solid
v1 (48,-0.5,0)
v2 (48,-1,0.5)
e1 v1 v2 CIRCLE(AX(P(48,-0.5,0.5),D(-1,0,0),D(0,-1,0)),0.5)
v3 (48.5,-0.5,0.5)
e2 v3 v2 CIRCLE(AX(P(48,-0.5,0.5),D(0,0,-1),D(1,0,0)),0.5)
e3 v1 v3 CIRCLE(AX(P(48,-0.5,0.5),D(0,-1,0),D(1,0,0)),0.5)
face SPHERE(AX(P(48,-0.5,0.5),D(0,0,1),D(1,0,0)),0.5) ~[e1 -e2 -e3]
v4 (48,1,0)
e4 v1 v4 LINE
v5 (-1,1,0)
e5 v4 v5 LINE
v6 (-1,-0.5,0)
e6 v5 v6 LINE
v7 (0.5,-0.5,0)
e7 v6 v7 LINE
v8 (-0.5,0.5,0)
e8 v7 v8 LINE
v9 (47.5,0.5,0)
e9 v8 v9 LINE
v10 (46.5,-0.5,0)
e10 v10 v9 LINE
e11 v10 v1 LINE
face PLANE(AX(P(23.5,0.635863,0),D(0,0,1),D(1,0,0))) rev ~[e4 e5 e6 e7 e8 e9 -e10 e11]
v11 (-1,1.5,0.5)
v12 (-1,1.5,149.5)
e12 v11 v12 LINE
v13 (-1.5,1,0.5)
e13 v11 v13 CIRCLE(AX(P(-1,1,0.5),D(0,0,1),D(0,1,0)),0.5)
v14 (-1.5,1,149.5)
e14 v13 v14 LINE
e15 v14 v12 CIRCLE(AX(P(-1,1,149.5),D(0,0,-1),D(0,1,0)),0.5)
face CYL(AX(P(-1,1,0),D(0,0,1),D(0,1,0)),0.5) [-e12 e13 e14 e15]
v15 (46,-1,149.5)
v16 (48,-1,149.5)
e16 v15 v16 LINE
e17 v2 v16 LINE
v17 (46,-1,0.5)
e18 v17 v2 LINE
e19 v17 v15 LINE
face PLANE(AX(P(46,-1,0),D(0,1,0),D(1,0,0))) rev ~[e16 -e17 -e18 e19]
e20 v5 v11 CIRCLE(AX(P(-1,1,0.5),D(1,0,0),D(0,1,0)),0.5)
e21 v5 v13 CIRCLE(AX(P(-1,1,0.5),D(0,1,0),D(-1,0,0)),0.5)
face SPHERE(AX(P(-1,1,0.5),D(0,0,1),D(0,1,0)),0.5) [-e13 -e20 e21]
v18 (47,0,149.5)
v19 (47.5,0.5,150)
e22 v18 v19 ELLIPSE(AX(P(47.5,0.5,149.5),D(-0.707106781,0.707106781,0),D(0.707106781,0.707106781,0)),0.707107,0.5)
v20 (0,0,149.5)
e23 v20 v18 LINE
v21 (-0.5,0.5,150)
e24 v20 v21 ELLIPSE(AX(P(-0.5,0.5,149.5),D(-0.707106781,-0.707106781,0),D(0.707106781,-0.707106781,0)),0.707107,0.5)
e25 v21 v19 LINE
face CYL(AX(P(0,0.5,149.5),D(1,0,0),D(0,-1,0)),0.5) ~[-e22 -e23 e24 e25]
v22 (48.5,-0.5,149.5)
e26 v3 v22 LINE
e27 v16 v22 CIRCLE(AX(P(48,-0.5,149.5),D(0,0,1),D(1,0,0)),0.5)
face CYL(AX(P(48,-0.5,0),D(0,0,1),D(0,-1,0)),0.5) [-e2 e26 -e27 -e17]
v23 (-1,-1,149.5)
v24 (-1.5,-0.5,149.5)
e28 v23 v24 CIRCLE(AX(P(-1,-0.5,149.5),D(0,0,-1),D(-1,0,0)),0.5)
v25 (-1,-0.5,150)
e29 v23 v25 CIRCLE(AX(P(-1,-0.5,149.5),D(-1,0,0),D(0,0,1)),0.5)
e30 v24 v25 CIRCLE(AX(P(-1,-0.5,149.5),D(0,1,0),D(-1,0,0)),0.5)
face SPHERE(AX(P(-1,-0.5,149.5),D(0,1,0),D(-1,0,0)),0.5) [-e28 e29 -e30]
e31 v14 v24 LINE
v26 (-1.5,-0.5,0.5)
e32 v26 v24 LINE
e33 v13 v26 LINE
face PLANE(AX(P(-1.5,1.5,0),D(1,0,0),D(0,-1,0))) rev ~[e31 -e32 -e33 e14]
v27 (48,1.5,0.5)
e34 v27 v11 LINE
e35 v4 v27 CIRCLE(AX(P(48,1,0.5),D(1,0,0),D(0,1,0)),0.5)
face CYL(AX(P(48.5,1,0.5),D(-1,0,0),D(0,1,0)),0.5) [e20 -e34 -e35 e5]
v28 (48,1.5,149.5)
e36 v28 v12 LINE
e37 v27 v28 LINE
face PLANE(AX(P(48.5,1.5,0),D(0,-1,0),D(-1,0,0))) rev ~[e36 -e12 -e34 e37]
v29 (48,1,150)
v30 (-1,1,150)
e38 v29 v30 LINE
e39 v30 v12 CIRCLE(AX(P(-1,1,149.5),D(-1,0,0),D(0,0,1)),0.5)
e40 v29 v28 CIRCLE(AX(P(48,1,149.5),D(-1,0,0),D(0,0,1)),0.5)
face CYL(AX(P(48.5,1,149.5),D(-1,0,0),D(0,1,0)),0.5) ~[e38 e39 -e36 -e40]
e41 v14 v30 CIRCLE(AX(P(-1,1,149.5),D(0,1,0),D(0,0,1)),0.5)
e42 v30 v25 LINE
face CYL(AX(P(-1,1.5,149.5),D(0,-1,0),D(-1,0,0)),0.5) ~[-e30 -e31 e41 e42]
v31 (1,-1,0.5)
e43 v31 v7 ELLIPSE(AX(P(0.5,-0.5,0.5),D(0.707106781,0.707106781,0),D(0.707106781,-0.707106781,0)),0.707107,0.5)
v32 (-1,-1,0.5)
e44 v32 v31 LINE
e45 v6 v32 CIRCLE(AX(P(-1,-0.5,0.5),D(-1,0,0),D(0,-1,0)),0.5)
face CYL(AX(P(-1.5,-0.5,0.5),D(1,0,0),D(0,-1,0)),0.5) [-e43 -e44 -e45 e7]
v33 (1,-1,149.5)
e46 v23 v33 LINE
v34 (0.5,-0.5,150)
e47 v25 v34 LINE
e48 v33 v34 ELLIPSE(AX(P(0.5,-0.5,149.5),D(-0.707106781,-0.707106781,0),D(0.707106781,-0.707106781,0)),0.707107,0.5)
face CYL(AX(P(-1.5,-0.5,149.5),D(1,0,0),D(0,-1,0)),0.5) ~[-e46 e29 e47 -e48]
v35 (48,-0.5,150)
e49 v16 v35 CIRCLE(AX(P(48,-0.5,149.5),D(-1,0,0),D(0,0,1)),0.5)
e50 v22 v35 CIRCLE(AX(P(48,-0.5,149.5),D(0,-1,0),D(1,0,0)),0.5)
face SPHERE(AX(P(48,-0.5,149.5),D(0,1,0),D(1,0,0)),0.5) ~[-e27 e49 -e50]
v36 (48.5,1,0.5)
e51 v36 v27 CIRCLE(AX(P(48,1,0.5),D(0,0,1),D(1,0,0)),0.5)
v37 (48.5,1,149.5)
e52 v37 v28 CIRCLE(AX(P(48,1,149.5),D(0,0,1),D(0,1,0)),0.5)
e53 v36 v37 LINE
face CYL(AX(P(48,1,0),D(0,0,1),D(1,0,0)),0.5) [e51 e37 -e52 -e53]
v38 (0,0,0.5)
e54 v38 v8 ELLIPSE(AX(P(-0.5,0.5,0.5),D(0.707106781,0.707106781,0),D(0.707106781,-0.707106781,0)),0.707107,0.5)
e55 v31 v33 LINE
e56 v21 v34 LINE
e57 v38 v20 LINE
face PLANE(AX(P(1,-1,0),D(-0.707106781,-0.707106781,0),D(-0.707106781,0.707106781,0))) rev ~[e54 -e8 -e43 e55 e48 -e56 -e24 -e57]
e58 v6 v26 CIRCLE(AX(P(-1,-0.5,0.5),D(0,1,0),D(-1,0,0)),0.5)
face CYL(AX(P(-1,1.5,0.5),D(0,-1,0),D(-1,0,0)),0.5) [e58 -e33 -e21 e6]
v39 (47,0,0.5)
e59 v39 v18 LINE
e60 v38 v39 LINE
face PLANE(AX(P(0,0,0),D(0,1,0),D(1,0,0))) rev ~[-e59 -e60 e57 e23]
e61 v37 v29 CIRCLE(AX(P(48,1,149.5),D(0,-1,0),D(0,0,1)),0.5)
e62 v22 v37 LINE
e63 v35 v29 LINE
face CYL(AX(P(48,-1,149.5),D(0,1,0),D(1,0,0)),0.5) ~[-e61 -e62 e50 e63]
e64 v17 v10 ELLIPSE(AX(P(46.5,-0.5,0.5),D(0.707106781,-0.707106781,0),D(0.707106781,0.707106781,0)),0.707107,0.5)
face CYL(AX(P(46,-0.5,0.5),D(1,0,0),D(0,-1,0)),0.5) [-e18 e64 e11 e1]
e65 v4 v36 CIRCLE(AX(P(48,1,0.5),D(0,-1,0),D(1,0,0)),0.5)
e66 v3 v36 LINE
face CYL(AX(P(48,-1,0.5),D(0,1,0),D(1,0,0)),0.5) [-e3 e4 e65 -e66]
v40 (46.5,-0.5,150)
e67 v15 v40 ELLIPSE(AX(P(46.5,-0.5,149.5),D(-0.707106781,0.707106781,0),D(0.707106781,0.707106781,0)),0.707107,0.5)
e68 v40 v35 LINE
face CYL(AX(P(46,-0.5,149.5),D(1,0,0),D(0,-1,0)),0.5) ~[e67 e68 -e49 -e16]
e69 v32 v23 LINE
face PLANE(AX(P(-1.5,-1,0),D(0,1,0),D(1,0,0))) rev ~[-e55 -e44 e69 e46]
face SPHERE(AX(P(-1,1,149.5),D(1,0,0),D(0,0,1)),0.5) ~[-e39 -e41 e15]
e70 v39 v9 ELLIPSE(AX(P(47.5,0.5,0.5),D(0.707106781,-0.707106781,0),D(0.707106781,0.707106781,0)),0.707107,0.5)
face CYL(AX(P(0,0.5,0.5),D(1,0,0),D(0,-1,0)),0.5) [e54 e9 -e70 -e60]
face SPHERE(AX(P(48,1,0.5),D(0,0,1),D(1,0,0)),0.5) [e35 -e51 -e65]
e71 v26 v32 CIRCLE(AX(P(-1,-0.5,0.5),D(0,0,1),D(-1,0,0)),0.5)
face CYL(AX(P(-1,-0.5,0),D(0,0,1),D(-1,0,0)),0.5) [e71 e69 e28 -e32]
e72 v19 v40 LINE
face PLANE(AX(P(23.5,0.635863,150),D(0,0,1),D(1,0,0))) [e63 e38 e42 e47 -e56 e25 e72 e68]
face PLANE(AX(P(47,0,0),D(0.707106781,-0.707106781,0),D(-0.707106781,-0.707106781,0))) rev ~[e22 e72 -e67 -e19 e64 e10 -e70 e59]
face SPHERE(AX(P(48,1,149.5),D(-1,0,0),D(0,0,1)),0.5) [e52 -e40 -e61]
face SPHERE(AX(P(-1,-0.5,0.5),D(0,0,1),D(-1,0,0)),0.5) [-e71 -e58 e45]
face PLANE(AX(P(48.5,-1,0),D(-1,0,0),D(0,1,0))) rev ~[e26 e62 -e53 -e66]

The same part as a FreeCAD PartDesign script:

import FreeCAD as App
import Part
import Sketcher
from FreeCAD import Vector
Q = App.Units.Quantity


def edges_at(feature, points):
    """Names of the edges that pass closest to the given points."""
    edges = feature.Shape.Edges
    near = lambda p: min(range(len(edges)), key=lambda i: edges[i].distToShape(Part.Vertex(*p))[0])
    return sorted({f"Edge{near(p) + 1}" for p in points})


def add_polygon(sketch, points):
    """Adds a closed chain of lines whose ends are joined by coincident constraints."""
    first, n = sketch.GeometryCount, len(points)
    for a, b in zip(points, points[1:] + points[:1]):
        sketch.addGeometry(Part.LineSegment(App.Vector(*a, 0), App.Vector(*b, 0)), False)
    for i in range(n):
        sketch.addConstraint(Sketcher.Constraint("Coincident", first + i, 2, first + (i + 1) % n, 1))

doc = App.newDocument("Part")
body = doc.addObject("PartDesign::Body", "Body")

# Sketch on XY plane
sketch1 = doc.addObject("Sketcher::SketchObject", "Sketch")
body.addObject(sketch1)
sketch1.AttachmentSupport = (doc.XY_Plane, [""])
sketch1.MapMode = "FlatFace"
add_polygon(sketch1, [(1, -1), (0, 0), (47, 0), (46, -1), (48.5, -1), (48.5, 1.5), (-1.5, 1.5), (-1.5, -1)])  # lines 0-7
sketch1.addConstraint([
    Sketcher.Constraint("Horizontal", 1),
    Sketcher.Constraint("Horizontal", 3),
    Sketcher.Constraint("Vertical", 4),
    Sketcher.Constraint("Horizontal", 5),
    Sketcher.Constraint("Vertical", 6),
    Sketcher.Constraint("Horizontal", 7),
    Sketcher.Constraint("Coincident", 0, 2, -1, 1),
    Sketcher.Constraint("Perpendicular", 0, 2),
    Sketcher.Constraint("Horizontal", 3, 2, 6, 2),
    Sketcher.Constraint("Equal", 3, 7),
    Sketcher.Constraint("Equal", 7, 4),
    Sketcher.Constraint("Equal", 0, 2),
    Sketcher.Constraint("DistanceX", 1, 1, 1, 2, Q("47 mm")),
    Sketcher.Constraint("DistanceX", 5, 2, 5, 1, Q("50 mm")),
    Sketcher.Constraint("DistanceX", 3, 1, 3, 2, Q("2.5 mm")),
])
pad1 = doc.addObject("PartDesign::Pad", "Pad")
body.addObject(pad1)
pad1.Profile = sketch1
pad1.Length = 150
doc.recompute()

fillet = doc.addObject("PartDesign::Fillet", "Fillet")
body.addObject(fillet)
fillet.Base = (pad1, edges_at(pad1, [
    (23.5, 0, 150),
    (23.5, 1.5, 150),
    (-1.5, 0.25, 150),
    (48.5, 0.25, 150),
    (48.5, -1, 75),
    (48.5, 1.5, 75),
    (48.5, 0.25, 0),
    (-1.5, -1, 75),
    (-1.5, 1.5, 75),
    (23.5, 1.5, 0),
    (-1.5, 0.25, 0),
    (47.25, -1, 0),
    (-0.25, -1, 0),
    (23.5, 0, 0),
    (-0.25, -1, 150),
    (47.25, -1, 150),
]))
fillet.Radius = 0.5

doc.recompute()
